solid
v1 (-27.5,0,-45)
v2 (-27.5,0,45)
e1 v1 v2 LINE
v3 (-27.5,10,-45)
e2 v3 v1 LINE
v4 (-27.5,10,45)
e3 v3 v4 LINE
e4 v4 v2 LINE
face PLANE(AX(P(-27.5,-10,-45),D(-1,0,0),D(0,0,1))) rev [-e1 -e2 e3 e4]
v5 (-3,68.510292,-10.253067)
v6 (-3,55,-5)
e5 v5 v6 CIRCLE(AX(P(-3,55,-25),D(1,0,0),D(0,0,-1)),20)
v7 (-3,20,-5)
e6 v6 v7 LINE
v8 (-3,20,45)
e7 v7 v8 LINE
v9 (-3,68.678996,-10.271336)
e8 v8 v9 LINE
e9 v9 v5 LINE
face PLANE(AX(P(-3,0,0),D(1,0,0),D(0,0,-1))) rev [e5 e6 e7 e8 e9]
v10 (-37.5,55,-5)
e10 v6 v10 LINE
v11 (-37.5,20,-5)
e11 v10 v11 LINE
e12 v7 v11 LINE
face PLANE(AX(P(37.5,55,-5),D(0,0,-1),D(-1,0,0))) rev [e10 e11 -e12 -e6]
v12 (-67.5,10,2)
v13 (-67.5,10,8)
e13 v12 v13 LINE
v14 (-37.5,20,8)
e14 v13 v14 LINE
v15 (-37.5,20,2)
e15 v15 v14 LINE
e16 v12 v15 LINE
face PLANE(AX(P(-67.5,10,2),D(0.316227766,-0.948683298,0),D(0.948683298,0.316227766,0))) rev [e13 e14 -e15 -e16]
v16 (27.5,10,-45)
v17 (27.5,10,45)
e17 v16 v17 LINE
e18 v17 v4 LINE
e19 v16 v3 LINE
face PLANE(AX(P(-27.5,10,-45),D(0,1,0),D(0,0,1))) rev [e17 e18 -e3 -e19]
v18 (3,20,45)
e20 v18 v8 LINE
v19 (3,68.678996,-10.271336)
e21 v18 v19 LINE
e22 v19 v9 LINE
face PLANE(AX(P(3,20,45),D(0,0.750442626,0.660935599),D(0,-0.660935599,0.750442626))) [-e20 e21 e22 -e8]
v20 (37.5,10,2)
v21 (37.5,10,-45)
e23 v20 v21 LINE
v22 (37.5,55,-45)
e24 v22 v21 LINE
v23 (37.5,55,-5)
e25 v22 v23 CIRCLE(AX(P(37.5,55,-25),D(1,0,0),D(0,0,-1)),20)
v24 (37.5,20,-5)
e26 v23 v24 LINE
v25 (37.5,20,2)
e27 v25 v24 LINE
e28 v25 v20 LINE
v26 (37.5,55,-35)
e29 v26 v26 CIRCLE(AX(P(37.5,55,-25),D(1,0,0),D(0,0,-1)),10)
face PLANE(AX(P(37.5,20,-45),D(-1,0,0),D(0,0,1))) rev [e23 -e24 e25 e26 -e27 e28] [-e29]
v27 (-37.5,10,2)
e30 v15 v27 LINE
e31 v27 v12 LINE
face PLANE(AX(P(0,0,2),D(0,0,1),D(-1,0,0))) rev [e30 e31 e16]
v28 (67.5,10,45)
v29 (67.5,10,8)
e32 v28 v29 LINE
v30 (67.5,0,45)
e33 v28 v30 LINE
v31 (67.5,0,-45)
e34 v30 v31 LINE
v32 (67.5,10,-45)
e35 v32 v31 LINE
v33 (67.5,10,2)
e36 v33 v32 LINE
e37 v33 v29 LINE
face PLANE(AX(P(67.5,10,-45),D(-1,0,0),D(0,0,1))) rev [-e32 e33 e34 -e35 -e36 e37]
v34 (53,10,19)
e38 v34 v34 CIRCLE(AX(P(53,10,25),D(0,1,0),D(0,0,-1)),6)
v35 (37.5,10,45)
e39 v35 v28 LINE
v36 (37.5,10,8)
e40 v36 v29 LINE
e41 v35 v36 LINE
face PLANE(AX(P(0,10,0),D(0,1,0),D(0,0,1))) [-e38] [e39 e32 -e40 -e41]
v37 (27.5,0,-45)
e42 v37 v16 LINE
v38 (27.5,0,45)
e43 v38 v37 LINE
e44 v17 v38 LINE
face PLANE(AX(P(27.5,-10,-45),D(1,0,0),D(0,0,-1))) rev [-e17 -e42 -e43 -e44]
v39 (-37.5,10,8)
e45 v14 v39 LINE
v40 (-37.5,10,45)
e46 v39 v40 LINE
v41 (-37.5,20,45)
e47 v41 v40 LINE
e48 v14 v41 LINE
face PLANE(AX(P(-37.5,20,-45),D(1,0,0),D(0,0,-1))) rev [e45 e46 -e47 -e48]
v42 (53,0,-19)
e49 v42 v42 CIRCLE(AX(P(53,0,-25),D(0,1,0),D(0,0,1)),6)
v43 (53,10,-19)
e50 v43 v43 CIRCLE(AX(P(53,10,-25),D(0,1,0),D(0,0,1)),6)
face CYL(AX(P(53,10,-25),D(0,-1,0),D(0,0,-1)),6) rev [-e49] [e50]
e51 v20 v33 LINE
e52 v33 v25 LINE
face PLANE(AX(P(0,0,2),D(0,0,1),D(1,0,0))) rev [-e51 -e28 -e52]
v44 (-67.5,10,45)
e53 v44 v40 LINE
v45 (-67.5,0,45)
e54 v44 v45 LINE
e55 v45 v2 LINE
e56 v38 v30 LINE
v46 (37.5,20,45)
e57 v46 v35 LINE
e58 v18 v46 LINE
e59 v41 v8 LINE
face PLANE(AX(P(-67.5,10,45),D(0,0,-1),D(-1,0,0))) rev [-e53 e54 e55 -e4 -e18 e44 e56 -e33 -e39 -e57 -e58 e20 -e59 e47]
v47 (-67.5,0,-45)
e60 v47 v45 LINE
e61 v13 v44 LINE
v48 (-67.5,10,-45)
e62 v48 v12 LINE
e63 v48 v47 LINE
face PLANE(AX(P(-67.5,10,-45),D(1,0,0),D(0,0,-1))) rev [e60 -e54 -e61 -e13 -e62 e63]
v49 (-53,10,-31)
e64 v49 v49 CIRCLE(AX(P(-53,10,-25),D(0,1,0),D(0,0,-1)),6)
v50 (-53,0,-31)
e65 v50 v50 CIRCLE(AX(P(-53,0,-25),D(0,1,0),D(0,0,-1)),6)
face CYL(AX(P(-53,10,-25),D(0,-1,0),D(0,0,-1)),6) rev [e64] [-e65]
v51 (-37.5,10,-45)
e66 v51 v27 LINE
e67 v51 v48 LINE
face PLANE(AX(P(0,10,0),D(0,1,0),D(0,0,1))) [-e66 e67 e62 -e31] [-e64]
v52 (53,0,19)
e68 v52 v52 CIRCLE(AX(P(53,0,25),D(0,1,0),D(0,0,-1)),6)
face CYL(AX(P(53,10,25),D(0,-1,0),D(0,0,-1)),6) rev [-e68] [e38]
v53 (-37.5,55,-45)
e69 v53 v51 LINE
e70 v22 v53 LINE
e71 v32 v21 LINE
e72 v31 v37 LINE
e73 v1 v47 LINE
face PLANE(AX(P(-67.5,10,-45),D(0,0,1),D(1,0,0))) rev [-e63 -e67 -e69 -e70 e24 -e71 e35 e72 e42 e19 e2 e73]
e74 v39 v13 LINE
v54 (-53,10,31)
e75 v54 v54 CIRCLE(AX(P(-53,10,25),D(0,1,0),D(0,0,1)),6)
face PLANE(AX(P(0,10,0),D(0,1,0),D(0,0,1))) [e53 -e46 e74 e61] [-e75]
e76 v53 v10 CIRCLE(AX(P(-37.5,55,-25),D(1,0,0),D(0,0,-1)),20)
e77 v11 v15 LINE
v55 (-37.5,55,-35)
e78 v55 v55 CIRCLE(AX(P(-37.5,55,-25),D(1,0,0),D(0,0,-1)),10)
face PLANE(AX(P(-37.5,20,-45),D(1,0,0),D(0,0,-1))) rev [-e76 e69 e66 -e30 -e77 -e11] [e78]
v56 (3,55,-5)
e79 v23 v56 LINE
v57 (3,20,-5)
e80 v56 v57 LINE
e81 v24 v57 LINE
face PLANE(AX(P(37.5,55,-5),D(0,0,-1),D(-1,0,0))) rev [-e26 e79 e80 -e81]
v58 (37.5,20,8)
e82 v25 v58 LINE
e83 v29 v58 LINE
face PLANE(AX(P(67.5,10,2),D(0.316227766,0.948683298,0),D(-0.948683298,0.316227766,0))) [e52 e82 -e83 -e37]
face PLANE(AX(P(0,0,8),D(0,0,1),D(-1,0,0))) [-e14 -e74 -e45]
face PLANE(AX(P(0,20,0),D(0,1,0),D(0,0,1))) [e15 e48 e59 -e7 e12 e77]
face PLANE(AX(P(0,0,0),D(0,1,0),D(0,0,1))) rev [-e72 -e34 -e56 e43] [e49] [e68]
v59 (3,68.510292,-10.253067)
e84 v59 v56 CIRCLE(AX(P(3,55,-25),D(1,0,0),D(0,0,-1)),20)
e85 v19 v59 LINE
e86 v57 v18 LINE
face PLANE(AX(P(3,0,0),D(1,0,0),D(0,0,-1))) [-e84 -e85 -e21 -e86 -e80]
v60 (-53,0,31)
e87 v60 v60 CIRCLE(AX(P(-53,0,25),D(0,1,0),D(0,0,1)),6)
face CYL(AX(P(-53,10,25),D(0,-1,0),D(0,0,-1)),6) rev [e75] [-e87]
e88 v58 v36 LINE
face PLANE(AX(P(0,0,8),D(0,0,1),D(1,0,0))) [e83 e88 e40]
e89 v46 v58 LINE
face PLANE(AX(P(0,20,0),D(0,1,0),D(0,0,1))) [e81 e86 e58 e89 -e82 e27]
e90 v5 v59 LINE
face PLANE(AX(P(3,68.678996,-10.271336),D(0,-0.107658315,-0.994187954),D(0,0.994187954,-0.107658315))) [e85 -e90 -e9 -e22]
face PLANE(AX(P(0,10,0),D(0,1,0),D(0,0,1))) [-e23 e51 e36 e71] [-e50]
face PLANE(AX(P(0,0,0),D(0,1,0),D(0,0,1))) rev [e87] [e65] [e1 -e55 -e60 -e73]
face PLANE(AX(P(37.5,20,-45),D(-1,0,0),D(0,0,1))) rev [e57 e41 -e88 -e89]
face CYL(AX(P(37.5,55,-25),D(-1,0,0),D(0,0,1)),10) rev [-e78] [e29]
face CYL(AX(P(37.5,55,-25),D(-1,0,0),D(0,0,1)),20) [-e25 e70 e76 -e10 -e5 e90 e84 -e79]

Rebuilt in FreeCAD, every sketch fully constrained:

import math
import FreeCAD as App
import Part
import Sketcher
Q = App.Units.Quantity

doc = App.newDocument("Part")
body = doc.addObject("PartDesign::Body", "Body")

# Sketch on XZ plane
sketch1 = body.newObject("Sketcher::SketchObject", "Sketch")
sketch1.AttachmentSupport = (doc.getObject("XZ_Plane"), [""])
sketch1.MapMode = "FlatFace"
sketch1.addGeometry([
    Part.LineSegment(App.Vector(-67.5, -45, 0), App.Vector(-67.5, 45, 0)),  # 0
    Part.LineSegment(App.Vector(-67.5, 45, 0), App.Vector(67.5, 45, 0)),  # 1
    Part.LineSegment(App.Vector(67.5, 45, 0), App.Vector(67.5, -45, 0)),  # 2
    Part.LineSegment(App.Vector(67.5, -45, 0), App.Vector(-67.5, -45, 0)),  # 3
    Part.Circle(App.Vector(-53, 25, 0), App.Vector(0, 0, 1), 6),  # 4
    Part.Circle(App.Vector(53, 25, 0), App.Vector(0, 0, 1), 6),  # 5
    Part.Circle(App.Vector(-53, -25, 0), App.Vector(0, 0, 1), 6),  # 6
    Part.Circle(App.Vector(53, -25, 0), App.Vector(0, 0, 1), 6),  # 7
], False)
sketch1.addConstraint([
    Sketcher.Constraint("Coincident", 0, 2, 1, 1),
    Sketcher.Constraint("Coincident", 1, 2, 2, 1),
    Sketcher.Constraint("Coincident", 2, 2, 3, 1),
    Sketcher.Constraint("Coincident", 3, 2, 0, 1),
    Sketcher.Constraint("Vertical", 0),
    Sketcher.Constraint("Horizontal", 1),
    Sketcher.Constraint("Vertical", 2),
    Sketcher.Constraint("Horizontal", 3),
    Sketcher.Constraint("Equal", 4, 5),
    Sketcher.Constraint("Equal", 5, 6),
    Sketcher.Constraint("Equal", 6, 7),
    Sketcher.Constraint("Symmetric", 5, 3, 6, 3, -1, 1),
    Sketcher.Constraint("Symmetric", 4, 3, 7, 3, -1, 1),
    Sketcher.Constraint("Symmetric", 0, 2, 2, 2, -1, 1),
    Sketcher.Constraint("Symmetric", 4, 3, 5, 3, -2),
    Sketcher.Constraint("Diameter", 4, Q("12 mm")),
    Sketcher.Constraint("DistanceX", 1, 1, 1, 2, Q("135 mm")),
    Sketcher.Constraint("DistanceY", 0, 1, 0, 2, Q("90 mm")),
    Sketcher.Constraint("DistanceX", 4, 3, -1, 1, Q("53 mm")),
    Sketcher.Constraint("DistanceY", -1, 1, 4, 3, Q("25 mm")),
])
pad1 = body.newObject("PartDesign::Pad", "Pad")
pad1.Profile = sketch1
pad1.Length = 10
pad1.Reversed = True

# Sketch on XZ plane
sketch2 = body.newObject("Sketcher::SketchObject", "Sketch001")
sketch2.AttachmentSupport = (doc.getObject("XZ_Plane"), [""])
sketch2.MapMode = "FlatFace"
sketch2.AttachmentOffset = App.Placement(App.Vector(0, 0, -10), App.Rotation())
sketch2.addGeometry([
    Part.LineSegment(App.Vector(-37.5, -45, 0), App.Vector(-37.5, 45, 0)),
    Part.LineSegment(App.Vector(-37.5, 45, 0), App.Vector(37.5, 45, 0)),
    Part.LineSegment(App.Vector(37.5, 45, 0), App.Vector(37.5, -45, 0)),
    Part.LineSegment(App.Vector(37.5, -45, 0), App.Vector(-37.5, -45, 0)),
], False)
sketch2.addConstraint([
    Sketcher.Constraint("Coincident", 0, 2, 1, 1),
    Sketcher.Constraint("Coincident", 1, 2, 2, 1),
    Sketcher.Constraint("Coincident", 2, 2, 3, 1),
    Sketcher.Constraint("Coincident", 3, 2, 0, 1),
    Sketcher.Constraint("Vertical", 0),
    Sketcher.Constraint("Horizontal", 1),
    Sketcher.Constraint("Vertical", 2),
    Sketcher.Constraint("Horizontal", 3),
    Sketcher.Constraint("Symmetric", 0, 2, 2, 2, -1, 1),
    Sketcher.Constraint("DistanceX", 1, 1, 1, 2, Q("75 mm")),
    Sketcher.Constraint("DistanceY", 0, 1, 0, 2, Q("90 mm")),
])
pad2 = body.newObject("PartDesign::Pad", "Pad001")
pad2.Profile = sketch2
pad2.Length = 10
pad2.Reversed = True

# Sketch on XY plane
sketch3 = body.newObject("Sketcher::SketchObject", "Sketch002")
sketch3.AttachmentSupport = (doc.getObject("XY_Plane"), [""])
sketch3.MapMode = "FlatFace"
sketch3.AttachmentOffset = App.Placement(App.Vector(0, 0, 45), App.Rotation())
sketch3.addGeometry([
    Part.LineSegment(App.Vector(-27.5, 10, 0), App.Vector(-27.5, -10, 0)),
    Part.LineSegment(App.Vector(-27.5, -10, 0), App.Vector(27.5, -10, 0)),
    Part.LineSegment(App.Vector(27.5, -10, 0), App.Vector(27.5, 10, 0)),
    Part.LineSegment(App.Vector(27.5, 10, 0), App.Vector(-27.5, 10, 0)),
], False)
sketch3.addConstraint([
    Sketcher.Constraint("Coincident", 0, 2, 1, 1),
    Sketcher.Constraint("Coincident", 1, 2, 2, 1),
    Sketcher.Constraint("Coincident", 2, 2, 3, 1),
    Sketcher.Constraint("Coincident", 3, 2, 0, 1),
    Sketcher.Constraint("Vertical", 0),
    Sketcher.Constraint("Horizontal", 1),
    Sketcher.Constraint("Vertical", 2),
    Sketcher.Constraint("Horizontal", 3),
    Sketcher.Constraint("Symmetric", 0, 2, 2, 2, -1, 1),
    Sketcher.Constraint("DistanceX", 1, 1, 1, 2, Q("55 mm")),
    Sketcher.Constraint("DistanceY", 0, 2, 0, 1, Q("20 mm")),
])
pocket1 = body.newObject("PartDesign::Pocket", "Pocket")
pocket1.Profile = sketch3
pocket1.Type = "ThroughAll"

# Sketch on XY plane
sketch4 = body.newObject("Sketcher::SketchObject", "Sketch003")
sketch4.AttachmentSupport = (doc.getObject("XY_Plane"), [""])
sketch4.MapMode = "FlatFace"
sketch4.AttachmentOffset = App.Placement(App.Vector(0, 0, 8), App.Rotation())
sketch4.addGeometry([
    Part.LineSegment(App.Vector(37.5, 20, 0), App.Vector(37.5, 10, 0)),
    Part.LineSegment(App.Vector(37.5, 10, 0), App.Vector(67.5, 10, 0)),
    Part.LineSegment(App.Vector(67.5, 10, 0), App.Vector(37.5, 20, 0)),
], False)
sketch4.addConstraint([
    Sketcher.Constraint("Coincident", 0, 2, 1, 1),
    Sketcher.Constraint("Coincident", 1, 2, 2, 1),
    Sketcher.Constraint("Coincident", 2, 2, 0, 1),
    Sketcher.Constraint("Vertical", 0),
    Sketcher.Constraint("Horizontal", 1),
    Sketcher.Constraint("DistanceX", 1, 1, 1, 2, Q("30 mm")),
    Sketcher.Constraint("DistanceY", 0, 2, 0, 1, Q("10 mm")),
    Sketcher.Constraint("DistanceY", -1, 1, 0, 2, Q("10 mm")),
    Sketcher.Constraint("DistanceX", -1, 1, 0, 2, Q("37.5 mm")),
])
pad3 = body.newObject("PartDesign::Pad", "Pad002")
pad3.Profile = sketch4
pad3.Length = 6
pad3.Reversed = True
doc.recompute()

mirrored = body.newObject("PartDesign::Mirrored", "Mirrored")
mirrored.Originals = [pad3]
mirrored.MirrorPlane = (doc.getObject("YZ_Plane"), [""])
body.Tip = mirrored

# Sketch on YZ plane
sketch5 = body.newObject("Sketcher::SketchObject", "Sketch004")
sketch5.AttachmentSupport = (doc.getObject("YZ_Plane"), [""])
sketch5.MapMode = "FlatFace"
sketch5.addGeometry([
    Part.LineSegment(App.Vector(20, -45, 0), App.Vector(55, -45, 0)),  # 0
    Part.ArcOfCircle(Part.Circle(App.Vector(55, -25, 0), App.Vector(0, 0, 1), 20), math.radians(-90), math.radians(90)),  # 1
    Part.LineSegment(App.Vector(55, -5, 0), App.Vector(20, -5, 0)),  # 2
    Part.LineSegment(App.Vector(20, -5, 0), App.Vector(20, -45, 0)),  # 3
    Part.Circle(App.Vector(55, -25, 0), App.Vector(0, 0, 1), 10),  # 4
], False)
sketch5.addConstraint([
    Sketcher.Constraint("Tangent", 0, 2, 1, 1),
    Sketcher.Constraint("Tangent", 1, 2, 2, 1),
    Sketcher.Constraint("Coincident", 2, 2, 3, 1),
    Sketcher.Constraint("Coincident", 3, 2, 0, 1),
    Sketcher.Constraint("Horizontal", 0),
    Sketcher.Constraint("Horizontal", 2),
    Sketcher.Constraint("Vertical", 3),
    Sketcher.Constraint("Coincident", 4, 3, 1, 3),
    Sketcher.Constraint("Diameter", 4, Q("20 mm")),
    Sketcher.Constraint("Radius", 1, Q("20 mm")),
    Sketcher.Constraint("DistanceX", 0, 1, 0, 2, Q("35 mm")),
    Sketcher.Constraint("DistanceX", -1, 1, 1, 3, Q("55 mm")),
    Sketcher.Constraint("DistanceY", 1, 3, -1, 1, Q("25 mm")),
])
pad4 = body.newObject("PartDesign::Pad", "Pad003")
pad4.Profile = sketch5
pad4.Length = 75
pad4.Midplane = True

# Sketch on YZ plane
sketch6 = body.newObject("Sketcher::SketchObject", "Sketch005")
sketch6.AttachmentSupport = (doc.getObject("YZ_Plane"), [""])
sketch6.MapMode = "FlatFace"
sketch6.addGeometry([
    Part.LineSegment(App.Vector(68.678996, -10.271336, 0), App.Vector(20, 45, 0)),
    Part.LineSegment(App.Vector(20, 45, 0), App.Vector(20, -5, 0)),
    Part.LineSegment(App.Vector(20, -5, 0), App.Vector(68.678996, -10.271336, 0)),
], False)
sketch6.addConstraint([
    Sketcher.Constraint("Coincident", 0, 2, 1, 1),
    Sketcher.Constraint("Coincident", 1, 2, 2, 1),
    Sketcher.Constraint("Coincident", 2, 2, 0, 1),
    Sketcher.Constraint("Vertical", 1),
    Sketcher.Constraint("DistanceY", 1, 2, 1, 1, Q("50 mm")),
    Sketcher.Constraint("DistanceX", -1, 1, 0, 2, Q("20 mm")),
    Sketcher.Constraint("DistanceY", -1, 1, 0, 2, Q("45 mm")),
    Sketcher.Constraint("Distance", 0, Q("73.651648 mm")),
    Sketcher.Constraint("Distance", 2, Q("48.963574 mm")),
])
pad5 = body.newObject("PartDesign::Pad", "Pad004")
pad5.Profile = sketch6
pad5.Length = 6
pad5.Midplane = True

doc.recompute()
